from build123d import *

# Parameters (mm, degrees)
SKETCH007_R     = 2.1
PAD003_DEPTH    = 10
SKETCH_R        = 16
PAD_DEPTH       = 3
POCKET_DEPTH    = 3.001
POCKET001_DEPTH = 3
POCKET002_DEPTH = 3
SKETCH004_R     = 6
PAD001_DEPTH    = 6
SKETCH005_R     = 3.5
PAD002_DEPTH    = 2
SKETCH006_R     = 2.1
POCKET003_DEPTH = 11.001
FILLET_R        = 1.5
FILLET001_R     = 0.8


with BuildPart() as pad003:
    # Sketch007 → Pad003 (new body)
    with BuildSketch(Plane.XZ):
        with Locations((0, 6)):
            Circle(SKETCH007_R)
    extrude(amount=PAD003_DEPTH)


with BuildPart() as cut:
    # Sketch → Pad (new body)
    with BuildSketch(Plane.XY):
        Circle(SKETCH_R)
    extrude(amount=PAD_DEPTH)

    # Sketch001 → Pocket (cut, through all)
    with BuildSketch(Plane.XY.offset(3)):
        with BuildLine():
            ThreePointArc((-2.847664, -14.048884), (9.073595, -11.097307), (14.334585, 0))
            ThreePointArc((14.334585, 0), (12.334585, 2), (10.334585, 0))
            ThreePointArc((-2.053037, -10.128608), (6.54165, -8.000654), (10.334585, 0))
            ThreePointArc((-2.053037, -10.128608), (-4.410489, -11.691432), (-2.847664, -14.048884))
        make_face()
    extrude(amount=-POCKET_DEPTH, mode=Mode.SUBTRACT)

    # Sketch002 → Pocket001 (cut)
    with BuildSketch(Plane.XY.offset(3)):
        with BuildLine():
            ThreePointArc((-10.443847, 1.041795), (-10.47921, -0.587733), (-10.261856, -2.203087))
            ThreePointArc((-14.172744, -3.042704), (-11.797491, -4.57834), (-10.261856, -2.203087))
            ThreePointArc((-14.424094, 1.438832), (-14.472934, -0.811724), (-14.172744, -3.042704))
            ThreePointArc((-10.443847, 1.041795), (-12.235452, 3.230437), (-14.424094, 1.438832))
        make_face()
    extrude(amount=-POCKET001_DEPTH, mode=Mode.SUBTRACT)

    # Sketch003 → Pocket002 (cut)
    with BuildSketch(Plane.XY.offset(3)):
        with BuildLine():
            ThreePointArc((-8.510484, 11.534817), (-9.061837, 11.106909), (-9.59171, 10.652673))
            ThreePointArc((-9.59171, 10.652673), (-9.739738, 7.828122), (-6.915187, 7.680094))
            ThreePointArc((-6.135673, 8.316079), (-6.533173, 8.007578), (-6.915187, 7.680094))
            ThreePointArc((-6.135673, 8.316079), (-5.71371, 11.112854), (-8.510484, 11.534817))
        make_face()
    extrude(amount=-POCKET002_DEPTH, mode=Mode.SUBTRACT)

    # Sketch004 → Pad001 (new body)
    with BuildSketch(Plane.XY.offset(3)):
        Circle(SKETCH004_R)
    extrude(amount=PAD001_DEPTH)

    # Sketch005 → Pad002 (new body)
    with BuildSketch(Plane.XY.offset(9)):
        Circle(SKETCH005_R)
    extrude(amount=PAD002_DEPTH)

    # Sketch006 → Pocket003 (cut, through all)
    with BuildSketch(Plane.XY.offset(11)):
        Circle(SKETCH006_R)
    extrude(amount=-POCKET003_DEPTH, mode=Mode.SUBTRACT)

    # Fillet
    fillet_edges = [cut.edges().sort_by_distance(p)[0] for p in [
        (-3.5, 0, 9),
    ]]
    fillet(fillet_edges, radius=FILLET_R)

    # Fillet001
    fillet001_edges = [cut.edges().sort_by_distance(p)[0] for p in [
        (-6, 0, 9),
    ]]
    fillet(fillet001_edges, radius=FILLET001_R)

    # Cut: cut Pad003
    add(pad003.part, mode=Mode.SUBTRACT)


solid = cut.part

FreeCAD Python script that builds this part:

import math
import FreeCAD as App
import Part
import Sketcher
from FreeCAD import Vector


def edges_at(feature, points):
    """Names of the edges that pass closest to the given points."""
    edges = feature.Shape.Edges
    near = lambda p: min(range(len(edges)), key=lambda i: edges[i].distToShape(Part.Vertex(*p))[0])
    return sorted({f"Edge{near(p) + 1}" for p in points})

doc = App.newDocument("Part")
body = doc.addObject("PartDesign::Body", "Body")

# Sketch on XZ plane
sketch1 = doc.addObject("Sketcher::SketchObject", "Sketch")
body.addObject(sketch1)
sketch1.AttachmentSupport = (doc.XZ_Plane, [""])
sketch1.MapMode = "FlatFace"
sketch1.addGeometry(Part.Circle(Vector(0, 6, 0), Vector(0, 0, 1), 2.1), False)
sketch1.addConstraint([
    Sketcher.Constraint("PointOnObject", 0, 3, -2),
    Sketcher.Constraint("Diameter", 0, 4.2),
    Sketcher.Constraint("DistanceY", -1, 1, 0, 3, 6.0),
])
pad1 = doc.addObject("PartDesign::Pad", "Pad")
body.addObject(pad1)
pad1.Profile = sketch1
pad1.Length = 10
body2 = doc.addObject("PartDesign::Body", "Body001")

# Sketch on XY plane
sketch2 = doc.addObject("Sketcher::SketchObject", "Sketch001")
body2.addObject(sketch2)
sketch2.AttachmentSupport = (doc.getObject("XY_Plane001"), [""])
sketch2.MapMode = "FlatFace"
sketch2.addGeometry(Part.Circle(Vector(0, 0, 0), Vector(0, 0, 1), 16), False)
sketch2.addConstraint([
    Sketcher.Constraint("Coincident", 0, 3, -1, 1),
    Sketcher.Constraint("Diameter", 0, 32.0),
])
pad2 = doc.addObject("PartDesign::Pad", "Pad001")
body2.addObject(pad2)
pad2.Profile = sketch2
pad2.Length = 3

# Sketch on XY plane
sketch3 = doc.addObject("Sketcher::SketchObject", "Sketch002")
body2.addObject(sketch3)
sketch3.AttachmentSupport = (doc.getObject("XY_Plane001"), [""])
sketch3.MapMode = "FlatFace"
sketch3.AttachmentOffset = App.Placement(Vector(0, 0, 3), App.Rotation())
sketch3.addGeometry([
    Part.ArcOfCircle(Part.Circle(Vector(0.000001, -0.000001, 0), Vector(0, 0, 1), 14.334584), math.radians(-101.458434), math.radians(0.000006)),
    Part.ArcOfCircle(Part.Circle(Vector(12.334585, 0, 0), Vector(0, 0, 1), 2), math.radians(0), math.radians(180)),
    Part.ArcOfCircle(Part.Circle(Vector(-0.000001, 0, 0), Vector(0, 0, 1), 10.334586), math.radians(-101.458426), math.radians(-0.000001)),
    Part.ArcOfCircle(Part.Circle(Vector(-2.450351, -12.088746, 0), Vector(0, 0, 1), 2), math.radians(78.541561), math.radians(258.541595)),
], False)
sketch3.addConstraint([
    Sketcher.Constraint("Tangent", 0, 2, 1, 1),
    Sketcher.Constraint("Tangent", 1, 2, 2, 2),
    Sketcher.Constraint("Tangent", 2, 1, 3, 1),
    Sketcher.Constraint("Tangent", 3, 2, 0, 1),
    Sketcher.Constraint("Coincident", 0, 3, -1, 1),
    Sketcher.Constraint("Coincident", 2, 3, -1, 1),
    Sketcher.Constraint("PointOnObject", 1, 3, -1),
    Sketcher.Constraint("Radius", 1, 2.0),
    Sketcher.Constraint("Radius", 0, 14.334584),
    Sketcher.Constraint("DistanceX", 3, 3, -1, 1, 2.450351),
])
pocket1 = doc.addObject("PartDesign::Pocket", "Pocket")
body2.addObject(pocket1)
pocket1.Profile = sketch3
pocket1.Type = "ThroughAll"

# Sketch on XY plane
sketch4 = doc.addObject("Sketcher::SketchObject", "Sketch003")
body2.addObject(sketch4)
sketch4.AttachmentSupport = (doc.getObject("XY_Plane001"), [""])
sketch4.MapMode = "FlatFace"
sketch4.AttachmentOffset = App.Placement(Vector(0, 0, 3), App.Rotation())
sketch4.addGeometry([
    Part.ArcOfCircle(Part.Circle(Vector(0.000026, 0.000001, 0), Vector(0, 0, 1), 10.495705), math.radians(174.303493), math.radians(192.116712)),
    Part.ArcOfCircle(Part.Circle(Vector(-12.43397, 1.240314, 0), Vector(0, 0, 1), 2), math.radians(-5.696516), math.radians(174.303484)),
    Part.ArcOfCircle(Part.Circle(Vector(0.000024, 0.000002, 0), Vector(0, 0, 1), 14.495703), math.radians(174.303493), math.radians(192.116726)),
    Part.ArcOfCircle(Part.Circle(Vector(-12.2173, -2.622896, 0), Vector(0, 0, 1), 2), math.radians(-167.883277), math.radians(12.116758)),
], False)
sketch4.addConstraint([
    Sketcher.Constraint("Tangent", 0, 1, 1, 1),
    Sketcher.Constraint("Tangent", 1, 2, 2, 1),
    Sketcher.Constraint("Tangent", 2, 2, 3, 1),
    Sketcher.Constraint("Tangent", 3, 2, 0, 2),
    Sketcher.Constraint("Coincident", 2, 3, 0, 3),
    Sketcher.Constraint("PointOnObject", 0, 3, -1),
    Sketcher.Constraint("Radius", 1, 2.0),
    Sketcher.Constraint("Radius", 0, 10.495705),
    Sketcher.Constraint("DistanceX", 3, 3, -1, 1, 12.2173),
    Sketcher.Constraint("DistanceY", 2, 2, 0, 1, 4.084499),
    Sketcher.Constraint("DistanceY", 3, 2, 1, 3, 3.443401),
])
pocket2 = doc.addObject("PartDesign::Pocket", "Pocket001")
body2.addObject(pocket2)
pocket2.Profile = sketch4
pocket2.Length = 3

# Sketch on XY plane
sketch5 = doc.addObject("Sketcher::SketchObject", "Sketch004")
body2.addObject(sketch5)
sketch5.AttachmentSupport = (doc.getObject("XY_Plane001"), [""])
sketch5.MapMode = "FlatFace"
sketch5.AttachmentOffset = App.Placement(Vector(0, 0, 3), App.Rotation())
sketch5.addGeometry([
    Part.ArcOfCircle(Part.Circle(Vector(0.000457, -0.000561, 0), Vector(0, 0, 1), 14.335309), math.radians(126.420354), math.radians(131.999857)),
    Part.ArcOfCircle(Part.Circle(Vector(-8.253448, 9.166384, 0), Vector(0, 0, 1), 2), math.radians(132.000009), math.radians(312.000009)),
    Part.ArcOfCircle(Part.Circle(Vector(-0.000021, 0.000024, 0), Vector(0, 0, 1), 10.334554), math.radians(126.420204), math.radians(132)),
    Part.ArcOfCircle(Part.Circle(Vector(-7.323079, 9.925448, 0), Vector(0, 0, 1), 2), math.radians(-53.57979), math.radians(126.420204)),
], False)
sketch5.addConstraint([
    Sketcher.Constraint("Coincident", 0, 2, 1, 1),
    Sketcher.Constraint("Tangent", 1, 2, 2, 2),
    Sketcher.Constraint("Tangent", 2, 1, 3, 1),
    Sketcher.Constraint("Coincident", 3, 2, 0, 1),
    Sketcher.Constraint("Equal", 1, 3),
    Sketcher.Constraint("Radius", 1, 2.0),
    Sketcher.Constraint("Radius", 0, 14.335309),
    Sketcher.Constraint("Radius", 2, 10.334554),
    Sketcher.Constraint("DistanceY", 0, 3, -1, 1, 0.000561),
    Sketcher.Constraint("DistanceX", 1, 3, -1, 1, 8.253448),
    Sketcher.Constraint("DistanceX", 3, 3, -1, 1, 7.323079),
    Sketcher.Constraint("DistanceX", 0, 2, -1, 1, 9.59171),
    Sketcher.Constraint("DistanceY", -1, 1, 2, 1, 8.316079),
    Sketcher.Constraint("DistanceY", 3, 3, 3, 2, 1.609369),
])
pocket3 = doc.addObject("PartDesign::Pocket", "Pocket002")
body2.addObject(pocket3)
pocket3.Profile = sketch5
pocket3.Length = 3

# Sketch on XY plane
sketch6 = doc.addObject("Sketcher::SketchObject", "Sketch005")
body2.addObject(sketch6)
sketch6.AttachmentSupport = (doc.getObject("XY_Plane001"), [""])
sketch6.MapMode = "FlatFace"
sketch6.AttachmentOffset = App.Placement(Vector(0, 0, 3), App.Rotation())
sketch6.addGeometry(Part.Circle(Vector(0, 0, 0), Vector(0, 0, 1), 6), False)
sketch6.addConstraint([
    Sketcher.Constraint("Coincident", 0, 3, -1, 1),
    Sketcher.Constraint("Diameter", 0, 12.0),
])
pad3 = doc.addObject("PartDesign::Pad", "Pad002")
body2.addObject(pad3)
pad3.Profile = sketch6
pad3.Length = 6

# Sketch on XY plane
sketch7 = doc.addObject("Sketcher::SketchObject", "Sketch006")
body2.addObject(sketch7)
sketch7.AttachmentSupport = (doc.getObject("XY_Plane001"), [""])
sketch7.MapMode = "FlatFace"
sketch7.AttachmentOffset = App.Placement(Vector(0, 0, 9), App.Rotation())
sketch7.addGeometry(Part.Circle(Vector(0, 0, 0), Vector(0, 0, 1), 3.5), False)
sketch7.addConstraint([
    Sketcher.Constraint("Coincident", 0, 3, -1, 1),
    Sketcher.Constraint("Diameter", 0, 7.0),
])
pad4 = doc.addObject("PartDesign::Pad", "Pad003")
body2.addObject(pad4)
pad4.Profile = sketch7
pad4.Length = 2

# Sketch on XY plane
sketch8 = doc.addObject("Sketcher::SketchObject", "Sketch007")
body2.addObject(sketch8)
sketch8.AttachmentSupport = (doc.getObject("XY_Plane001"), [""])
sketch8.MapMode = "FlatFace"
sketch8.AttachmentOffset = App.Placement(Vector(0, 0, 11), App.Rotation())
sketch8.addGeometry(Part.Circle(Vector(0, 0, 0), Vector(0, 0, 1), 2.1), False)
sketch8.addConstraint([
    Sketcher.Constraint("Coincident", 0, 3, -1, 1),
    Sketcher.Constraint("Diameter", 0, 4.2),
])
pocket4 = doc.addObject("PartDesign::Pocket", "Pocket003")
body2.addObject(pocket4)
pocket4.Profile = sketch8
pocket4.Type = "ThroughAll"
doc.recompute()

fillet = doc.addObject("PartDesign::Fillet", "Fillet")
body2.addObject(fillet)
fillet.Base = (pocket4, edges_at(pocket4, [(-3.5, 0, 9)]))
fillet.Radius = 1.5
doc.recompute()

fillet2 = doc.addObject("PartDesign::Fillet", "Fillet001")
body2.addObject(fillet2)
fillet2.Base = (fillet, edges_at(fillet, [(-6, 0, 9)]))
fillet2.Radius = 0.8
doc.recompute()

boolean = doc.addObject("PartDesign::Boolean", "Boolean")
body2.addObject(boolean)
boolean.Type = "Cut"
boolean.addObjects([body])

doc.recompute()
